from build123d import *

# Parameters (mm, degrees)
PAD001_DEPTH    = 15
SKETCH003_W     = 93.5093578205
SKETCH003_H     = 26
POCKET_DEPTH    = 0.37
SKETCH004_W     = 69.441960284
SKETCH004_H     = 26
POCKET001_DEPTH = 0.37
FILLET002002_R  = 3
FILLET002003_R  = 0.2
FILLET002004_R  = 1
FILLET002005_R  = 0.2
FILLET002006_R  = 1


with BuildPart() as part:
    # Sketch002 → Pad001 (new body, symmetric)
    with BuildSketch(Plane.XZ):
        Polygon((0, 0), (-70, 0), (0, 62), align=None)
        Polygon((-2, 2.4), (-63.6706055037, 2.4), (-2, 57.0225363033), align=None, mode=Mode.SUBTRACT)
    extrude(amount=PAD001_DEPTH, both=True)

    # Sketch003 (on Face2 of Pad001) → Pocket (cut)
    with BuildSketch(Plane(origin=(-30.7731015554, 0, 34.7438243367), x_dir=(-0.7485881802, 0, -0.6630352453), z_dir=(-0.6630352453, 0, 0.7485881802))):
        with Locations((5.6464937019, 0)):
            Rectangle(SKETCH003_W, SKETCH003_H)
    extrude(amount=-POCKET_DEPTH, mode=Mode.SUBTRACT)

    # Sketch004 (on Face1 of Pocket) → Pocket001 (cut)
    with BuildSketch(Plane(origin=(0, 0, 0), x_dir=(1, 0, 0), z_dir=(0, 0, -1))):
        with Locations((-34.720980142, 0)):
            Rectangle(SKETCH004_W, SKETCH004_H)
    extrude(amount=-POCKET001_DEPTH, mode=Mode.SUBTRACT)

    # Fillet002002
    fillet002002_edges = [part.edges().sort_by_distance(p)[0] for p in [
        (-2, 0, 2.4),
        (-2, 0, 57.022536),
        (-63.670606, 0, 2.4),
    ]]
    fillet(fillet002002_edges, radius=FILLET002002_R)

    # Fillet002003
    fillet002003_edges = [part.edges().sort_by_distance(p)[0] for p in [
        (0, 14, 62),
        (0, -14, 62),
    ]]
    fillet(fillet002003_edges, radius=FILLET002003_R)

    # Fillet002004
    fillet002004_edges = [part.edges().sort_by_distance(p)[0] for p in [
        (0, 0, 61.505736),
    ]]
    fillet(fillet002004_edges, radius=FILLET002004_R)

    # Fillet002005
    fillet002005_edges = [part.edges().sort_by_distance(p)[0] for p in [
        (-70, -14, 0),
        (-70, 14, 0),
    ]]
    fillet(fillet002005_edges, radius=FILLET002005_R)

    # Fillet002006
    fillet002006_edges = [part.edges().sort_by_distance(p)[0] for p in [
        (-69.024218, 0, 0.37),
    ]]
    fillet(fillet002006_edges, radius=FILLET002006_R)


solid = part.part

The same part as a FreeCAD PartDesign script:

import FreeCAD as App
import Part
import Sketcher


def edges_at(feature, points):
    """Names of the edges that pass closest to the given points."""
    edges = feature.Shape.Edges
    near = lambda p: min(range(len(edges)), key=lambda i: edges[i].distToShape(Part.Vertex(*p))[0])
    return sorted({f"Edge{near(p) + 1}" for p in points})

doc = App.newDocument("Part")
body = doc.addObject("PartDesign::Body", "Body")

# Sketch on XZ plane
sketch1 = body.newObject("Sketcher::SketchObject", "Sketch")
sketch1.AttachmentSupport = (doc.getObject("XZ_Plane"), [""])
sketch1.MapMode = "FlatFace"
sketch1.addGeometry(Part.LineSegment(App.Vector(-70, 0, 0), App.Vector(0, 0, 0)), False)
sketch1.addGeometry(Part.LineSegment(App.Vector(0, 0, 0), App.Vector(0, 62, 0)), False)
sketch1.addGeometry(Part.LineSegment(App.Vector(0, 62, 0), App.Vector(-70, 0, 0)), False)
sketch1.addGeometry(Part.LineSegment(App.Vector(-2, 2, 0), App.Vector(-64, 2, 0)), False)
sketch1.addGeometry(Part.LineSegment(App.Vector(-64, 2, 0), App.Vector(-2, 57, 0)), False)
sketch1.addGeometry(Part.LineSegment(App.Vector(-2, 57, 0), App.Vector(-2, 2, 0)), False)
sketch1.addConstraint(Sketcher.Constraint("Coincident", 0, 2, 1, 1))
sketch1.addConstraint(Sketcher.Constraint("Coincident", 1, 2, 2, 1))
sketch1.addConstraint(Sketcher.Constraint("Coincident", 2, 2, 0, 1))
sketch1.addConstraint(Sketcher.Constraint("Coincident", 3, 2, 4, 1))
sketch1.addConstraint(Sketcher.Constraint("Coincident", 4, 2, 5, 1))
sketch1.addConstraint(Sketcher.Constraint("Coincident", 5, 2, 3, 1))
sketch1.addConstraint(Sketcher.Constraint("Horizontal", 0))
sketch1.addConstraint(Sketcher.Constraint("Vertical", 1))
sketch1.addConstraint(Sketcher.Constraint("Horizontal", 3))
sketch1.addConstraint(Sketcher.Constraint("Vertical", 5))
sketch1.addConstraint(Sketcher.Constraint("Coincident", 0, 2, -1, 1))
sketch1.addConstraint(Sketcher.Constraint("Parallel", 2, 4))
sketch1.addConstraint(Sketcher.Constraint("DistanceX", 0, 1, 0, 2, 70.0))
sketch1.addConstraint(Sketcher.Constraint("DistanceY", 1, 1, 1, 2, 62.0))
sketch1.addConstraint(Sketcher.Constraint("DistanceX", 4, 2, -1, 1, 2.0))
sketch1.addConstraint(Sketcher.Constraint("DistanceY", -1, 1, 3, 2, 2.4))
sketch1.addConstraint(Sketcher.Constraint("DistanceX", 3, 2, 3, 1, 61.670606))
pad1 = body.newObject("PartDesign::Pad", "Pad")
pad1.Profile = sketch1
pad1.Length = 30
pad1.Midplane = True

# Sketch on an angled plane
sketch2 = body.newObject("Sketcher::SketchObject", "Sketch001")
sketch2.Placement = App.Placement(App.Vector(-30.773102, 0, 34.743824), App.Rotation(App.Vector(-0.74858818, 0, -0.663035245), App.Vector(0, -0.999999999, 0), App.Vector(-0.663035245, 0, 0.74858818), "ZXY"))
sketch2.addGeometry(Part.LineSegment(App.Vector(-41, 13, 0), App.Vector(-41, -13, 0)), False)
sketch2.addGeometry(Part.LineSegment(App.Vector(-41, -13, 0), App.Vector(52, -13, 0)), False)
sketch2.addGeometry(Part.LineSegment(App.Vector(52, -13, 0), App.Vector(52, 13, 0)), False)
sketch2.addGeometry(Part.LineSegment(App.Vector(52, 13, 0), App.Vector(-41, 13, 0)), False)
sketch2.addConstraint(Sketcher.Constraint("Coincident", 0, 2, 1, 1))
sketch2.addConstraint(Sketcher.Constraint("Coincident", 1, 2, 2, 1))
sketch2.addConstraint(Sketcher.Constraint("Coincident", 2, 2, 3, 1))
sketch2.addConstraint(Sketcher.Constraint("Coincident", 3, 2, 0, 1))
sketch2.addConstraint(Sketcher.Constraint("Vertical", 0))
sketch2.addConstraint(Sketcher.Constraint("Horizontal", 1))
sketch2.addConstraint(Sketcher.Constraint("Vertical", 2))
sketch2.addConstraint(Sketcher.Constraint("Horizontal", 3))
sketch2.addConstraint(Sketcher.Constraint("DistanceY", 0, 2, 0, 1, 26.0))
sketch2.addConstraint(Sketcher.Constraint("DistanceY", 0, 2, -1, 1, 13.0))
sketch2.addConstraint(Sketcher.Constraint("DistanceX", 1, 1, 1, 2, 93.509358))
sketch2.addConstraint(Sketcher.Constraint("DistanceX", 0, 2, -1, 1, 41.108185))
pocket1 = body.newObject("PartDesign::Pocket", "Pocket")
pocket1.Profile = sketch2
pocket1.Length = 0.37

# Sketch on XY plane
sketch3 = body.newObject("Sketcher::SketchObject", "Sketch002")
sketch3.AttachmentSupport = (doc.getObject("XY_Plane"), [""])
sketch3.MapMode = "FlatFace"
sketch3.addGeometry(Part.LineSegment(App.Vector(-69, -13, 0), App.Vector(-69, 13, 0)), False)
sketch3.addGeometry(Part.LineSegment(App.Vector(-69, 13, 0), App.Vector(0, 13, 0)), False)
sketch3.addGeometry(Part.LineSegment(App.Vector(0, 13, 0), App.Vector(0, -13, 0)), False)
sketch3.addGeometry(Part.LineSegment(App.Vector(0, -13, 0), App.Vector(-69, -13, 0)), False)
sketch3.addConstraint(Sketcher.Constraint("Coincident", 0, 2, 1, 1))
sketch3.addConstraint(Sketcher.Constraint("Coincident", 1, 2, 2, 1))
sketch3.addConstraint(Sketcher.Constraint("Coincident", 2, 2, 3, 1))
sketch3.addConstraint(Sketcher.Constraint("Coincident", 3, 2, 0, 1))
sketch3.addConstraint(Sketcher.Constraint("Vertical", 0))
sketch3.addConstraint(Sketcher.Constraint("Horizontal", 1))
sketch3.addConstraint(Sketcher.Constraint("Vertical", 2))
sketch3.addConstraint(Sketcher.Constraint("Horizontal", 3))
sketch3.addConstraint(Sketcher.Constraint("Symmetric", 1, 2, 2, 2, -1, 1))
sketch3.addConstraint(Sketcher.Constraint("DistanceY", 0, 1, 0, 2, 26.0))
sketch3.addConstraint(Sketcher.Constraint("DistanceX", 1, 1, 1, 2, 69.44196))
pocket2 = body.newObject("PartDesign::Pocket", "Pocket001")
pocket2.Profile = sketch3
pocket2.Length = 0.37
pocket2.Reversed = True
doc.recompute()

fillet = body.newObject("PartDesign::Fillet", "Fillet")
fillet.Base = (pocket2, edges_at(pocket2, [(-2, 0, 2.4), (-2, 0, 57.023), (-63.671, 0, 2.4)]))
fillet.Radius = 3
doc.recompute()

fillet2 = body.newObject("PartDesign::Fillet", "Fillet001")
fillet2.Base = (fillet, edges_at(fillet, [(0, 14, 62), (0, -14, 62)]))
fillet2.Radius = 0.2
doc.recompute()

fillet3 = body.newObject("PartDesign::Fillet", "Fillet002")
fillet3.Base = (fillet2, edges_at(fillet2, [(0, 0, 61.506)]))
fillet3.Radius = 1
doc.recompute()

fillet4 = body.newObject("PartDesign::Fillet", "Fillet003")
fillet4.Base = (fillet3, edges_at(fillet3, [(-70, -14, 0), (-70, 14, 0)]))
fillet4.Radius = 0.2
doc.recompute()

fillet5 = body.newObject("PartDesign::Fillet", "Fillet004")
fillet5.Base = (fillet4, edges_at(fillet4, [(-69.024, 0, 0.37)]))
fillet5.Radius = 1

doc.recompute()
